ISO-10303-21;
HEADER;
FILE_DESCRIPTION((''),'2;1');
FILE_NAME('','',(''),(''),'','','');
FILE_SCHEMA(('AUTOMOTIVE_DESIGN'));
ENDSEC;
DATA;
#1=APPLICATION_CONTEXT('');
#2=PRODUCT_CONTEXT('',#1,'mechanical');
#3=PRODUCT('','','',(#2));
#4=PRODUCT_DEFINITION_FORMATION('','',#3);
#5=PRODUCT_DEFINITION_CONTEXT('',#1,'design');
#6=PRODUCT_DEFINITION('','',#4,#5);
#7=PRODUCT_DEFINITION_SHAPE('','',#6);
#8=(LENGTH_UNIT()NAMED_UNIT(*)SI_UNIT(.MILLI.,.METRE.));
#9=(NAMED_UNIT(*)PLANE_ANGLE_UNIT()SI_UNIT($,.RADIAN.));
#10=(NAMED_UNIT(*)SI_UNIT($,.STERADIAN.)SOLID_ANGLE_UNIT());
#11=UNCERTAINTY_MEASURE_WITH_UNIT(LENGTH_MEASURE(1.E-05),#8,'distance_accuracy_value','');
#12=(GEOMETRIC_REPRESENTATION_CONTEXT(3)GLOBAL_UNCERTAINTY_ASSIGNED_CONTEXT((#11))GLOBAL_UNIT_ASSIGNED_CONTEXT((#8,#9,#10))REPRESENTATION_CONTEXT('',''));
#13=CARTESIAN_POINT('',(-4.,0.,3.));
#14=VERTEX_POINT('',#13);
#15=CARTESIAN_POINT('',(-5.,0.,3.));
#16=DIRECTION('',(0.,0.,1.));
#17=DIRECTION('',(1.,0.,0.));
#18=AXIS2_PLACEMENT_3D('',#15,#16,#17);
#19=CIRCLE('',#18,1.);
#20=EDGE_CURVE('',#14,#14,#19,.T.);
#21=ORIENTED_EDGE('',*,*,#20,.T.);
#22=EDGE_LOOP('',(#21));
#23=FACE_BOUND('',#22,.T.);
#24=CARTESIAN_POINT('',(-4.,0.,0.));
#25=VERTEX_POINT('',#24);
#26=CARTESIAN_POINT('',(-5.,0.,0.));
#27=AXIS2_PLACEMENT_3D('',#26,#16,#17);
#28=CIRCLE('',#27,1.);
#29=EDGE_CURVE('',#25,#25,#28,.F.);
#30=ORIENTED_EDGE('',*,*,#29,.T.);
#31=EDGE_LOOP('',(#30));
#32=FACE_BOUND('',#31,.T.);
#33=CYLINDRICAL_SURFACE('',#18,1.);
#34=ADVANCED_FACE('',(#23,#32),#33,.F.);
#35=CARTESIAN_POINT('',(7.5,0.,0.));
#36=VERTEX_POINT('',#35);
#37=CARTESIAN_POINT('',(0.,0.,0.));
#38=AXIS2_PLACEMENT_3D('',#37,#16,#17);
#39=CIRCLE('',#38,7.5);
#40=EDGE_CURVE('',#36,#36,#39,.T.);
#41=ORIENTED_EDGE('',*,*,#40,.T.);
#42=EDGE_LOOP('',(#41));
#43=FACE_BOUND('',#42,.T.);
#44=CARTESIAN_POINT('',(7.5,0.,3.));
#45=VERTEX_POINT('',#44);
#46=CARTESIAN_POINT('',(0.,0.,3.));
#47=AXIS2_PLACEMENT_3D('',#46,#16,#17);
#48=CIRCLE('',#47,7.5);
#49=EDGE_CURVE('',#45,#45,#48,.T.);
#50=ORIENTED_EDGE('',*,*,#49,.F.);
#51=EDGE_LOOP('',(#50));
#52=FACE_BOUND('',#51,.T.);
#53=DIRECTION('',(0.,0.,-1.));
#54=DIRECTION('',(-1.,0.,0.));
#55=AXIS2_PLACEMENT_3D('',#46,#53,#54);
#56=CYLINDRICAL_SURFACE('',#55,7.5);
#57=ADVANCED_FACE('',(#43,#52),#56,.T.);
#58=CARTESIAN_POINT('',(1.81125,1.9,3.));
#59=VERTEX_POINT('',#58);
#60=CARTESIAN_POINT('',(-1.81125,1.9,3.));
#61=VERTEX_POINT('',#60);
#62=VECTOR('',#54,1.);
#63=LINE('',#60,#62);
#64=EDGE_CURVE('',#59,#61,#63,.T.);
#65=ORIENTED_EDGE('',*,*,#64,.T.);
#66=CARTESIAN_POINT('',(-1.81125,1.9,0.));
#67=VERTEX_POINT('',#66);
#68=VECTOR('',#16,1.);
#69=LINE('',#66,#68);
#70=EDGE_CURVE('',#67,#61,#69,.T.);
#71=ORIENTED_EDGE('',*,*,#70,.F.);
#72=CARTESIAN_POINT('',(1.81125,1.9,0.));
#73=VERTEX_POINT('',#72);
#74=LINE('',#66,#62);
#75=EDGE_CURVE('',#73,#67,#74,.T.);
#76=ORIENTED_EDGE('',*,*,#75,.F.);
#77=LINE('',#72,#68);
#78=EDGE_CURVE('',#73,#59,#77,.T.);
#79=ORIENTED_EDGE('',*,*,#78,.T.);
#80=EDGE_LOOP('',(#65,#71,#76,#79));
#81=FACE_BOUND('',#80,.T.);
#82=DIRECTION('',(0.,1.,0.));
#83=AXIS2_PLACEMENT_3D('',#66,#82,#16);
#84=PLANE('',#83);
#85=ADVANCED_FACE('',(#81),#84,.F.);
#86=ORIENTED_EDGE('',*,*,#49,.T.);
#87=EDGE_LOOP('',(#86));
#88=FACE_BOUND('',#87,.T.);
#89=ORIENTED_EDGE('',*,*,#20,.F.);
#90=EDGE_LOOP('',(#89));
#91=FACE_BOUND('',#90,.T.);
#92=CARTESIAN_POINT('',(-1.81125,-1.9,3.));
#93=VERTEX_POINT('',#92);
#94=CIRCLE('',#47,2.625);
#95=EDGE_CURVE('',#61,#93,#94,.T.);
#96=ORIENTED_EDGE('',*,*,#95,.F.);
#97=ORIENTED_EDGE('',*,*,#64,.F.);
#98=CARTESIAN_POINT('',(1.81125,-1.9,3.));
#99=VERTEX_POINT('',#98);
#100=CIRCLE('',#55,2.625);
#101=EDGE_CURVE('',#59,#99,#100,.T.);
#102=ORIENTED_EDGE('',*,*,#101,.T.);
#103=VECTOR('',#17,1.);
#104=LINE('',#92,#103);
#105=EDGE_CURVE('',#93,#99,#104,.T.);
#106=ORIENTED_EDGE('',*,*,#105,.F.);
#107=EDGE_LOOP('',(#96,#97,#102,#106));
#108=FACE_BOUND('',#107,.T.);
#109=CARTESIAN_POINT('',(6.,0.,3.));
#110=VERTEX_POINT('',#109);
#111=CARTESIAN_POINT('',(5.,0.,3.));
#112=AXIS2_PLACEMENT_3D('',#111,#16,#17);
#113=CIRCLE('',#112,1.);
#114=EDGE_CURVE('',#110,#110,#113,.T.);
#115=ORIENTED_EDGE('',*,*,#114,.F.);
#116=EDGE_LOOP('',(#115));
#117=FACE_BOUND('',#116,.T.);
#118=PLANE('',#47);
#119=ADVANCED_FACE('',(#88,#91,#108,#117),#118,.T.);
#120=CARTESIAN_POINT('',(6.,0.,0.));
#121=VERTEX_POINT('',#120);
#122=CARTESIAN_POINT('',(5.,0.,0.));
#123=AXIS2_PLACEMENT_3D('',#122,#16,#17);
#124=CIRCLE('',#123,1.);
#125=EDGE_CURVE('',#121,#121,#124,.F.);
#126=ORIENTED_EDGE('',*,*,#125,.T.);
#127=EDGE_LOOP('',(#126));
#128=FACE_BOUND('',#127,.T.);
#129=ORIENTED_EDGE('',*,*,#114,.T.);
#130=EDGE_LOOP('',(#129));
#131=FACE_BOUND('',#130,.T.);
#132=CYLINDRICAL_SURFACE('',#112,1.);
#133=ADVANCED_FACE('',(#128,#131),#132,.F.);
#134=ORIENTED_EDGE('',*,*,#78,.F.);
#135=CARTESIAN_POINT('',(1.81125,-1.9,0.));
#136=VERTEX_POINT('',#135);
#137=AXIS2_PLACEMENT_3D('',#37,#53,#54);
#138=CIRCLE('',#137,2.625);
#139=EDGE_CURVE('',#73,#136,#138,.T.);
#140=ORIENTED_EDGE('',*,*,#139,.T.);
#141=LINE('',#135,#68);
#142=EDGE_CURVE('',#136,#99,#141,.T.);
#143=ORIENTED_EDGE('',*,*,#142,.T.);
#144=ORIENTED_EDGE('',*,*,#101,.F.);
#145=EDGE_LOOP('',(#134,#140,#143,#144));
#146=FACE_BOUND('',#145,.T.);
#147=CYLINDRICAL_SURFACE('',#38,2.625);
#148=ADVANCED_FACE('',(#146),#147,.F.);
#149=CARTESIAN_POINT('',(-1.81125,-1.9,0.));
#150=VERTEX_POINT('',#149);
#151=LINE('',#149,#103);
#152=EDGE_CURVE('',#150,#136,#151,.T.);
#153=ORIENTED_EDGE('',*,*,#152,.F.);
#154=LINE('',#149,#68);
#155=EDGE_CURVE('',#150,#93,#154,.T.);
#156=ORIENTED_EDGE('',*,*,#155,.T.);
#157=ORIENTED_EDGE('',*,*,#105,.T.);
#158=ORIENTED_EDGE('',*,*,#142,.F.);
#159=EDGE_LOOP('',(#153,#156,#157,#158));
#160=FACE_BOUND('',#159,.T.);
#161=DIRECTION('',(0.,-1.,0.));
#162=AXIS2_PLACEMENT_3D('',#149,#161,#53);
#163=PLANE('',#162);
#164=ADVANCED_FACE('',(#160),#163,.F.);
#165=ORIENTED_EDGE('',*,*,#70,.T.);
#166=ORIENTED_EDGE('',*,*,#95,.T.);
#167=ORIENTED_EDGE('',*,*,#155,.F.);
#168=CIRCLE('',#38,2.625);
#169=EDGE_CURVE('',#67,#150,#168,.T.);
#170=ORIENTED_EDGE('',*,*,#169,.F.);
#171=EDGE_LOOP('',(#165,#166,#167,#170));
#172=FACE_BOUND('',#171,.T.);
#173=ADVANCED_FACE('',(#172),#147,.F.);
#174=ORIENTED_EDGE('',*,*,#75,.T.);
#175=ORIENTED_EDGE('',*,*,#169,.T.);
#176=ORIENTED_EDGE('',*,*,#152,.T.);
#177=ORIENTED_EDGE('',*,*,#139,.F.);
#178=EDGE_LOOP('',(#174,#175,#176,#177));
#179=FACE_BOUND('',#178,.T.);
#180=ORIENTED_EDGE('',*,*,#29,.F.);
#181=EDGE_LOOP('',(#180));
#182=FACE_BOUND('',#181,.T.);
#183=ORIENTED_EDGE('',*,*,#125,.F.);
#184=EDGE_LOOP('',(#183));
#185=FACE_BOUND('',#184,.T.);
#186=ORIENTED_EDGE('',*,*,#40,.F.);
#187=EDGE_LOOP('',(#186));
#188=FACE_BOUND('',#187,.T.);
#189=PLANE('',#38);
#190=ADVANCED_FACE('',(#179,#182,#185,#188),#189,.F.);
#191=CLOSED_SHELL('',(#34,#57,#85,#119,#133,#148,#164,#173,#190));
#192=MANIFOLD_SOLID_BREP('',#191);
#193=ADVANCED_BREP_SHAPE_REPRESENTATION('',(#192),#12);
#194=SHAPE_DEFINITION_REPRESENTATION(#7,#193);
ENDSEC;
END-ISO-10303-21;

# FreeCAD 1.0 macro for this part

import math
import FreeCAD as App
import Part
import Sketcher
from FreeCAD import Vector

doc = App.newDocument("Part")
params = doc.addObject("Spreadsheet::Sheet", "Params")
for row, (alias, value) in enumerate([
    ("sketch1_diameter", "15 mm"),
    ("pad1_length", "3 mm"),
    ("sketch2_height", "3.8 mm"),
    ("pocket1_length", "3 mm"),
    ("sketch3_height", "3.8 mm"),
    ("pocket2_length", "3 mm"),
    ("sketch4_diameter", "2 mm"),
    ("hole_diameter", "2 mm"),
], start=1):
    params.set(f"A{row}", alias)
    params.set(f"B{row}", "=" + value)
    params.setAlias(f"B{row}", alias)

body = doc.addObject("PartDesign::Body", "Body")

# Sketch on XY plane
sketch1 = body.newObject("Sketcher::SketchObject", "Sketch")
sketch1.AttachmentSupport = (doc.getObject("XY_Plane"), [""])
sketch1.MapMode = "FlatFace"
sketch1.addGeometry(Part.Circle(Vector(0, 0, 0), Vector(0, 0, 1), 7.5), False)
sketch1.addConstraint(Sketcher.Constraint("Coincident", 0, 3, -1, 1))
sketch1.addConstraint(Sketcher.Constraint("Diameter", 0, 15.0))
sketch1.setExpression("Constraints[1]", "Params.sketch1_diameter")
pad1 = body.newObject("PartDesign::Pad", "Pad")
pad1.Profile = sketch1
pad1.setExpression("Length", "Params.pad1_length")

# Sketch on XY plane
sketch2 = body.newObject("Sketcher::SketchObject", "Sketch001")
sketch2.AttachmentSupport = (doc.getObject("XY_Plane"), [""])
sketch2.MapMode = "FlatFace"
sketch2.AttachmentOffset = App.Placement(Vector(0, 0, 3), App.Rotation())
sketch2.addGeometry(Part.LineSegment(Vector(-1.81125, -1.9, 0), Vector(-1.81125, 1.9, 0)), False)
sketch2.addGeometry(Part.ArcOfCircle(Part.Circle(Vector(0, 0, 0), Vector(0, 0, 1), 2.625), math.radians(133.630096), math.radians(226.369904)), False)
sketch2.addConstraint(Sketcher.Constraint("Coincident", 0, 1, 1, 2))
sketch2.addConstraint(Sketcher.Constraint("Coincident", 1, 1, 0, 2))
sketch2.addConstraint(Sketcher.Constraint("Vertical", 0))
sketch2.addConstraint(Sketcher.Constraint("Coincident", 1, 3, -1, 1))
sketch2.addConstraint(Sketcher.Constraint("DistanceY", 0, 1, 0, 2, 3.8))
sketch2.addConstraint(Sketcher.Constraint("Radius", 1, 2.625))
sketch2.setExpression("Constraints[4]", "Params.sketch2_height")
pocket1 = body.newObject("PartDesign::Pocket", "Pocket")
pocket1.Profile = sketch2
pocket1.setExpression("Length", "Params.pocket1_length")

# Sketch on XY plane
sketch3 = body.newObject("Sketcher::SketchObject", "Sketch002")
sketch3.AttachmentSupport = (doc.getObject("XY_Plane"), [""])
sketch3.MapMode = "FlatFace"
sketch3.AttachmentOffset = App.Placement(Vector(0, 0, 3), App.Rotation())
sketch3.addGeometry(Part.LineSegment(Vector(-1.81125, 1.9, 0), Vector(-1.81125, -1.9, 0)), False)
sketch3.addGeometry(Part.LineSegment(Vector(-1.81125, -1.9, 0), Vector(0, -1.9, 0)), False)
sketch3.addGeometry(Part.LineSegment(Vector(0, -1.9, 0), Vector(0, 1.9, 0)), False)
sketch3.addGeometry(Part.LineSegment(Vector(0, 1.9, 0), Vector(-1.81125, 1.9, 0)), False)
sketch3.addConstraint(Sketcher.Constraint("Coincident", 0, 2, 1, 1))
sketch3.addConstraint(Sketcher.Constraint("Coincident", 1, 2, 2, 1))
sketch3.addConstraint(Sketcher.Constraint("Coincident", 2, 2, 3, 1))
sketch3.addConstraint(Sketcher.Constraint("Coincident", 3, 2, 0, 1))
sketch3.addConstraint(Sketcher.Constraint("Vertical", 0))
sketch3.addConstraint(Sketcher.Constraint("Horizontal", 1))
sketch3.addConstraint(Sketcher.Constraint("Vertical", 2))
sketch3.addConstraint(Sketcher.Constraint("Horizontal", 3))
sketch3.addConstraint(Sketcher.Constraint("Symmetric", 1, 2, 2, 2, -1, 1))
sketch3.addConstraint(Sketcher.Constraint("DistanceY", 0, 2, 0, 1, 3.8))
sketch3.addConstraint(Sketcher.Constraint("DistanceX", 1, 1, 1, 2, 1.81125))
sketch3.setExpression("Constraints[9]", "Params.sketch3_height")
pocket2 = body.newObject("PartDesign::Pocket", "Pocket001")
pocket2.Profile = sketch3
pocket2.setExpression("Length", "Params.pocket2_length")
doc.recompute()

mirrored = body.newObject("PartDesign::Mirrored", "Mirrored")
mirrored.Originals = [pocket1, pocket2]
mirrored.MirrorPlane = (doc.getObject("YZ_Plane"), [""])
body.Tip = mirrored

# Sketch on XY plane
sketch4 = body.newObject("Sketcher::SketchObject", "Sketch003")
sketch4.AttachmentSupport = (doc.getObject("XY_Plane"), [""])
sketch4.MapMode = "FlatFace"
sketch4.AttachmentOffset = App.Placement(Vector(0, 0, 3), App.Rotation())
sketch4.addGeometry(Part.Circle(Vector(5, 0, 0), Vector(0, 0, 1), 1), False)
sketch4.addGeometry(Part.Circle(Vector(-5, 0, 0), Vector(0, 0, 1), 1), False)
sketch4.addConstraint(Sketcher.Constraint("Equal", 0, 1))
sketch4.addConstraint(Sketcher.Constraint("Symmetric", 0, 3, 1, 3, -1, 1))
sketch4.addConstraint(Sketcher.Constraint("PointOnObject", 0, 3, -1))
sketch4.addConstraint(Sketcher.Constraint("Diameter", 0, 2.0))
sketch4.addConstraint(Sketcher.Constraint("DistanceX", -1, 1, 0, 3, 5.0))
sketch4.setExpression("Constraints[3]", "Params.sketch4_diameter")
doc.recompute()
hole = body.newObject("PartDesign::Hole", "Hole")
hole.Profile = sketch4
hole.ThreadType = "None"
hole.setExpression("Diameter", "Params.hole_diameter")
hole.DepthType = "ThroughAll"

doc.recompute()
